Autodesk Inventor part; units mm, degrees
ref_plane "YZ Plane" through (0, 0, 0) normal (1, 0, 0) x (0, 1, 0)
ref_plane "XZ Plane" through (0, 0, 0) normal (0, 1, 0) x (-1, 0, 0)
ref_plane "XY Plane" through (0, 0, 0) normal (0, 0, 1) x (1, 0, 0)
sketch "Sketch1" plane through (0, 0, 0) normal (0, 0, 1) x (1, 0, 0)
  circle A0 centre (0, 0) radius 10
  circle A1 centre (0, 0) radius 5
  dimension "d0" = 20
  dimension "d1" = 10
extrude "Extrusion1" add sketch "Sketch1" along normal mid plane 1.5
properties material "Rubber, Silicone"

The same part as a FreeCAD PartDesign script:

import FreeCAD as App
import Part
import Sketcher
from FreeCAD import Vector

doc = App.newDocument("Part")
params = doc.addObject("Spreadsheet::Sheet", "Params")
for row, (alias, value) in enumerate([
    ("sketch1_diameter", "20 mm"),
    ("sketch1_diameter2", "10 mm"),
    ("pad1_length", "1.5 mm"),
], start=1):
    params.set(f"A{row}", alias)
    params.set(f"B{row}", "=" + value)
    params.setAlias(f"B{row}", alias)

body = doc.addObject("PartDesign::Body", "Body")

# Sketch on XY plane
sketch1 = body.newObject("Sketcher::SketchObject", "Sketch")
sketch1.AttachmentSupport = (doc.getObject("XY_Plane"), [""])
sketch1.MapMode = "FlatFace"
sketch1.addGeometry([
    Part.Circle(Vector(0, 0, 0), Vector(0, 0, 1), 10),
    Part.Circle(Vector(0, 0, 0), Vector(0, 0, 1), 5),
], False)
sketch1.addConstraint([
    Sketcher.Constraint("Coincident", 0, 3, -1, 1),
    Sketcher.Constraint("Coincident", 1, 3, -1, 1),
    Sketcher.Constraint("Diameter", 0, 20.0),
    Sketcher.Constraint("Diameter", 1, 10.0),
])
sketch1.setExpression("Constraints[2]", "Params.sketch1_diameter")
sketch1.setExpression("Constraints[3]", "Params.sketch1_diameter2")
pad1 = body.newObject("PartDesign::Pad", "Pad")
pad1.Profile = sketch1
pad1.setExpression("Length", "Params.pad1_length")
pad1.Midplane = True

doc.recompute()
